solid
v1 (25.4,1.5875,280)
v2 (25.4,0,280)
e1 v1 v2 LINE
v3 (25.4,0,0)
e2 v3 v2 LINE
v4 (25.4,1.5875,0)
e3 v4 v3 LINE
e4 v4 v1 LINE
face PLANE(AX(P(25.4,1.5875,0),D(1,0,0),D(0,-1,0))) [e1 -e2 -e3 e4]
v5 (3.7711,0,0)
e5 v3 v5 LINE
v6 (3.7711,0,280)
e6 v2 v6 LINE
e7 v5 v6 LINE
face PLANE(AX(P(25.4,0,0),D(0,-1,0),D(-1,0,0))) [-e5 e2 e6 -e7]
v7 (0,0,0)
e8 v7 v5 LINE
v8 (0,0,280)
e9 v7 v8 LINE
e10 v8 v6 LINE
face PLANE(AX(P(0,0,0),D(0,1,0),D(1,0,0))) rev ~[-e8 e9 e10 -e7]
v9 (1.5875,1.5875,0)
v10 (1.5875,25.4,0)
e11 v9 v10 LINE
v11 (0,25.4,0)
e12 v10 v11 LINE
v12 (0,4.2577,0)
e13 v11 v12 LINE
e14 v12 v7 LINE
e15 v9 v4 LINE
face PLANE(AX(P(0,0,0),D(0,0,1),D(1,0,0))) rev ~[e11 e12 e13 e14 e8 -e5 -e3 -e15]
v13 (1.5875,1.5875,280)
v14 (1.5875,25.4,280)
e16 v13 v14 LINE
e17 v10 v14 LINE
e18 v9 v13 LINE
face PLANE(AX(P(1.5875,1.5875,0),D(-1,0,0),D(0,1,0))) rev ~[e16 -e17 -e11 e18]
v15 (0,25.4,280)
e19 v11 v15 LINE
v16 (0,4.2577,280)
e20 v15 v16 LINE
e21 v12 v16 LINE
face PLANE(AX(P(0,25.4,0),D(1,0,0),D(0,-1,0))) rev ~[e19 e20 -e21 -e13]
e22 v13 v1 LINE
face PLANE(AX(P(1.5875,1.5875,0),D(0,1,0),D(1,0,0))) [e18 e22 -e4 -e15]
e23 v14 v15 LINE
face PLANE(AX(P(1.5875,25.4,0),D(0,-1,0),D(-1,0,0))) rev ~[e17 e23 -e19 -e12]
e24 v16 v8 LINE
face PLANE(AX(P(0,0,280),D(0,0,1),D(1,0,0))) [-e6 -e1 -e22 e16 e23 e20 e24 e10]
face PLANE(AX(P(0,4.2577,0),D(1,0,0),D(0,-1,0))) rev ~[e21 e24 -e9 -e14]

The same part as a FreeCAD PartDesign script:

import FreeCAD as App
import Part
import Sketcher
Q = App.Units.Quantity

doc = App.newDocument("Part")
body = doc.addObject("PartDesign::Body", "Body")

# Sketch on XY plane
sketch1 = body.newObject("Sketcher::SketchObject", "Sketch")
sketch1.AttachmentSupport = (doc.getObject("XY_Plane"), [""])
sketch1.MapMode = "FlatFace"
sketch1.addGeometry([
    Part.LineSegment(App.Vector(0, 25.4, 0), App.Vector(0, 0, 0)),  # 0
    Part.LineSegment(App.Vector(0, 0, 0), App.Vector(25.4, 0, 0)),  # 1
    Part.LineSegment(App.Vector(25.4, 0, 0), App.Vector(25.4, 1.6, 0)),  # 2
    Part.LineSegment(App.Vector(25.4, 1.6, 0), App.Vector(1.6, 1.6, 0)),  # 3
    Part.LineSegment(App.Vector(1.6, 1.6, 0), App.Vector(1.6, 25.4, 0)),  # 4
    Part.LineSegment(App.Vector(1.6, 25.4, 0), App.Vector(0, 25.4, 0)),  # 5
], False)
sketch1.addConstraint([
    Sketcher.Constraint("Coincident", 0, 2, 1, 1),
    Sketcher.Constraint("Coincident", 1, 2, 2, 1),
    Sketcher.Constraint("Coincident", 2, 2, 3, 1),
    Sketcher.Constraint("Coincident", 3, 2, 4, 1),
    Sketcher.Constraint("Coincident", 4, 2, 5, 1),
    Sketcher.Constraint("Coincident", 5, 2, 0, 1),
    Sketcher.Constraint("Vertical", 0),
    Sketcher.Constraint("Horizontal", 1),
    Sketcher.Constraint("Vertical", 2),
    Sketcher.Constraint("Horizontal", 3),
    Sketcher.Constraint("Vertical", 4),
    Sketcher.Constraint("Horizontal", 5),
    Sketcher.Constraint("Coincident", 0, 2, -1, 1),
    Sketcher.Constraint("Equal", 1, 0),
    Sketcher.Constraint("Equal", 5, 2),
    Sketcher.Constraint("DistanceX", 1, 1, 1, 2, Q("1 in")),
    Sketcher.Constraint("DistanceX", 5, 2, 5, 1, Q("0.0625 in")),
])
pad1 = body.newObject("PartDesign::Pad", "Pad")
pad1.Profile = sketch1
pad1.Length = 280

doc.recompute()
